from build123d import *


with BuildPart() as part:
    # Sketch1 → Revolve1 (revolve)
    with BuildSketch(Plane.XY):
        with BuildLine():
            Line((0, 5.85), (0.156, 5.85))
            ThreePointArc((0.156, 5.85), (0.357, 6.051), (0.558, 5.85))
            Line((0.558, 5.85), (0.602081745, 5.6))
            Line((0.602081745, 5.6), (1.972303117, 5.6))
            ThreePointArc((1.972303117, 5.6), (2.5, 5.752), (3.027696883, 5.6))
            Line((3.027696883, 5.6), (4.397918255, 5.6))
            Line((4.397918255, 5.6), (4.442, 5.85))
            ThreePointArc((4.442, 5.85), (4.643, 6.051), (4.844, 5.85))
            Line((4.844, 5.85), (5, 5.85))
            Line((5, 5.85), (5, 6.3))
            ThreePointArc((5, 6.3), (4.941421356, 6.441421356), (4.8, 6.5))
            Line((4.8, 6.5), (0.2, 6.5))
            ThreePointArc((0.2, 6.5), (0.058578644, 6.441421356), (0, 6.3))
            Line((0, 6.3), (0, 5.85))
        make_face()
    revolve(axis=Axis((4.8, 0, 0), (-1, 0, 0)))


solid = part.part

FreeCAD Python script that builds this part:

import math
import FreeCAD as App
import Part
import Sketcher
Q = App.Units.Quantity

doc = App.newDocument("Part")
body = doc.addObject("PartDesign::Body", "Body")

sketch1 = body.newObject("Sketcher::SketchObject", "Sketch")
sketch1.AttachmentSupport = (doc.getObject("XY_Plane"), [""])
sketch1.MapMode = "FlatFace"
sketch1.addGeometry(Part.LineSegment(App.Vector(0, 5.85, 0), App.Vector(0.16, 5.85, 0)), False)
sketch1.addGeometry(Part.ArcOfCircle(Part.Circle(App.Vector(0.36, 5.85, 0), App.Vector(0, 0, 1), 0.2), math.radians(0), math.radians(180)), False)
sketch1.addGeometry(Part.LineSegment(App.Vector(0.56, 5.85, 0), App.Vector(0.6, 5.6, 0)), False)
sketch1.addGeometry(Part.LineSegment(App.Vector(0.6, 5.6, 0), App.Vector(1.97, 5.6, 0)), False)
sketch1.addGeometry(Part.ArcOfCircle(Part.Circle(App.Vector(2.5, 4.76, 0), App.Vector(0, 0, 1), 0.99), math.radians(58), math.radians(122)), False)
sketch1.addGeometry(Part.LineSegment(App.Vector(3.03, 5.6, 0), App.Vector(4.4, 5.6, 0)), False)
sketch1.addGeometry(Part.LineSegment(App.Vector(4.4, 5.6, 0), App.Vector(4.44, 5.85, 0)), False)
sketch1.addGeometry(Part.ArcOfCircle(Part.Circle(App.Vector(4.64, 5.85, 0), App.Vector(0, 0, 1), 0.2), math.radians(0), math.radians(180)), False)
sketch1.addGeometry(Part.LineSegment(App.Vector(4.84, 5.85, 0), App.Vector(5, 5.85, 0)), False)
sketch1.addGeometry(Part.LineSegment(App.Vector(5, 5.85, 0), App.Vector(5, 6.3, 0)), False)
sketch1.addGeometry(Part.ArcOfCircle(Part.Circle(App.Vector(4.8, 6.3, 0), App.Vector(0, 0, 1), 0.2), math.radians(0), math.radians(90)), False)
sketch1.addGeometry(Part.LineSegment(App.Vector(4.8, 6.5, 0), App.Vector(0.2, 6.5, 0)), False)
sketch1.addGeometry(Part.ArcOfCircle(Part.Circle(App.Vector(0.2, 6.3, 0), App.Vector(0, 0, 1), 0.2), math.radians(90), math.radians(180)), False)
sketch1.addGeometry(Part.LineSegment(App.Vector(0, 6.3, 0), App.Vector(0, 5.85, 0)), False)
sketch1.addConstraint(Sketcher.Constraint("Coincident", 0, 2, 1, 2))
sketch1.addConstraint(Sketcher.Constraint("Coincident", 1, 1, 2, 1))
sketch1.addConstraint(Sketcher.Constraint("Coincident", 2, 2, 3, 1))
sketch1.addConstraint(Sketcher.Constraint("Coincident", 3, 2, 4, 2))
sketch1.addConstraint(Sketcher.Constraint("Coincident", 4, 1, 5, 1))
sketch1.addConstraint(Sketcher.Constraint("Coincident", 5, 2, 6, 1))
sketch1.addConstraint(Sketcher.Constraint("Coincident", 6, 2, 7, 2))
sketch1.addConstraint(Sketcher.Constraint("Coincident", 7, 1, 8, 1))
sketch1.addConstraint(Sketcher.Constraint("Coincident", 8, 2, 9, 1))
sketch1.addConstraint(Sketcher.Constraint("Tangent", 9, 2, 10, 1))
sketch1.addConstraint(Sketcher.Constraint("Tangent", 10, 2, 11, 1))
sketch1.addConstraint(Sketcher.Constraint("Tangent", 11, 2, 12, 1))
sketch1.addConstraint(Sketcher.Constraint("Tangent", 12, 2, 13, 1))
sketch1.addConstraint(Sketcher.Constraint("Coincident", 13, 2, 0, 1))
sketch1.addConstraint(Sketcher.Constraint("Horizontal", 0))
sketch1.addConstraint(Sketcher.Constraint("Horizontal", 3))
sketch1.addConstraint(Sketcher.Constraint("Horizontal", 5))
sketch1.addConstraint(Sketcher.Constraint("Horizontal", 8))
sketch1.addConstraint(Sketcher.Constraint("Vertical", 9))
sketch1.addConstraint(Sketcher.Constraint("Horizontal", 11))
sketch1.addConstraint(Sketcher.Constraint("Vertical", 13))
sketch1.addConstraint(Sketcher.Constraint("Equal", 1, 7))
sketch1.addConstraint(Sketcher.Constraint("Equal", 10, 12))
sketch1.addConstraint(Sketcher.Constraint("PointOnObject", 12, 2, -2))
sketch1.addConstraint(Sketcher.Constraint("Horizontal", 1, 3, 7, 3))
sketch1.addConstraint(Sketcher.Constraint("Horizontal", 7, 3, 0, 2))
sketch1.addConstraint(Sketcher.Constraint("Horizontal", 0, 2, 1, 1))
sketch1.addConstraint(Sketcher.Constraint("Horizontal", 3, 2, 4, 1))
sketch1.addConstraint(Sketcher.Constraint("Horizontal", 1, 1, 6, 2))
sketch1.addConstraint(Sketcher.Constraint("Horizontal", 6, 2, 7, 1))
sketch1.addConstraint(Sketcher.Constraint("Equal", 3, 5))
sketch1.addConstraint(Sketcher.Constraint("Equal", 0, 8))
sketch1.addConstraint(Sketcher.Constraint("Equal", 2, 6))
sketch1.addConstraint(Sketcher.Constraint("Radius", 10, 0.2))
sketch1.addConstraint(Sketcher.Constraint("Angle", 2, Q("-80 deg")))
sketch1.addConstraint(Sketcher.Constraint("DistanceX", 11, 2, 11, 1, 4.6))
sketch1.addConstraint(Sketcher.Constraint("Radius", 1, 0.201))
sketch1.addConstraint(Sketcher.Constraint("Radius", 4, 0.992))
sketch1.addConstraint(Sketcher.Constraint("DistanceY", 9, 1, 9, 2, 0.45))
sketch1.addConstraint(Sketcher.Constraint("DistanceY", -1, 1, 10, 3, 6.3))
sketch1.addConstraint(Sketcher.Constraint("DistanceY", -1, 1, 2, 2, 5.6))
sketch1.addConstraint(Sketcher.Constraint("DistanceX", 0, 1, 0, 2, 0.156))
sketch1.addConstraint(Sketcher.Constraint("DistanceY", -1, 1, 4, 3, 4.76))
revolution = body.newObject("PartDesign::Revolution", "Revolution")
revolution.Profile = sketch1
revolution.ReferenceAxis = (sketch1, ["H_Axis"])
revolution.Angle = 360

doc.recompute()
